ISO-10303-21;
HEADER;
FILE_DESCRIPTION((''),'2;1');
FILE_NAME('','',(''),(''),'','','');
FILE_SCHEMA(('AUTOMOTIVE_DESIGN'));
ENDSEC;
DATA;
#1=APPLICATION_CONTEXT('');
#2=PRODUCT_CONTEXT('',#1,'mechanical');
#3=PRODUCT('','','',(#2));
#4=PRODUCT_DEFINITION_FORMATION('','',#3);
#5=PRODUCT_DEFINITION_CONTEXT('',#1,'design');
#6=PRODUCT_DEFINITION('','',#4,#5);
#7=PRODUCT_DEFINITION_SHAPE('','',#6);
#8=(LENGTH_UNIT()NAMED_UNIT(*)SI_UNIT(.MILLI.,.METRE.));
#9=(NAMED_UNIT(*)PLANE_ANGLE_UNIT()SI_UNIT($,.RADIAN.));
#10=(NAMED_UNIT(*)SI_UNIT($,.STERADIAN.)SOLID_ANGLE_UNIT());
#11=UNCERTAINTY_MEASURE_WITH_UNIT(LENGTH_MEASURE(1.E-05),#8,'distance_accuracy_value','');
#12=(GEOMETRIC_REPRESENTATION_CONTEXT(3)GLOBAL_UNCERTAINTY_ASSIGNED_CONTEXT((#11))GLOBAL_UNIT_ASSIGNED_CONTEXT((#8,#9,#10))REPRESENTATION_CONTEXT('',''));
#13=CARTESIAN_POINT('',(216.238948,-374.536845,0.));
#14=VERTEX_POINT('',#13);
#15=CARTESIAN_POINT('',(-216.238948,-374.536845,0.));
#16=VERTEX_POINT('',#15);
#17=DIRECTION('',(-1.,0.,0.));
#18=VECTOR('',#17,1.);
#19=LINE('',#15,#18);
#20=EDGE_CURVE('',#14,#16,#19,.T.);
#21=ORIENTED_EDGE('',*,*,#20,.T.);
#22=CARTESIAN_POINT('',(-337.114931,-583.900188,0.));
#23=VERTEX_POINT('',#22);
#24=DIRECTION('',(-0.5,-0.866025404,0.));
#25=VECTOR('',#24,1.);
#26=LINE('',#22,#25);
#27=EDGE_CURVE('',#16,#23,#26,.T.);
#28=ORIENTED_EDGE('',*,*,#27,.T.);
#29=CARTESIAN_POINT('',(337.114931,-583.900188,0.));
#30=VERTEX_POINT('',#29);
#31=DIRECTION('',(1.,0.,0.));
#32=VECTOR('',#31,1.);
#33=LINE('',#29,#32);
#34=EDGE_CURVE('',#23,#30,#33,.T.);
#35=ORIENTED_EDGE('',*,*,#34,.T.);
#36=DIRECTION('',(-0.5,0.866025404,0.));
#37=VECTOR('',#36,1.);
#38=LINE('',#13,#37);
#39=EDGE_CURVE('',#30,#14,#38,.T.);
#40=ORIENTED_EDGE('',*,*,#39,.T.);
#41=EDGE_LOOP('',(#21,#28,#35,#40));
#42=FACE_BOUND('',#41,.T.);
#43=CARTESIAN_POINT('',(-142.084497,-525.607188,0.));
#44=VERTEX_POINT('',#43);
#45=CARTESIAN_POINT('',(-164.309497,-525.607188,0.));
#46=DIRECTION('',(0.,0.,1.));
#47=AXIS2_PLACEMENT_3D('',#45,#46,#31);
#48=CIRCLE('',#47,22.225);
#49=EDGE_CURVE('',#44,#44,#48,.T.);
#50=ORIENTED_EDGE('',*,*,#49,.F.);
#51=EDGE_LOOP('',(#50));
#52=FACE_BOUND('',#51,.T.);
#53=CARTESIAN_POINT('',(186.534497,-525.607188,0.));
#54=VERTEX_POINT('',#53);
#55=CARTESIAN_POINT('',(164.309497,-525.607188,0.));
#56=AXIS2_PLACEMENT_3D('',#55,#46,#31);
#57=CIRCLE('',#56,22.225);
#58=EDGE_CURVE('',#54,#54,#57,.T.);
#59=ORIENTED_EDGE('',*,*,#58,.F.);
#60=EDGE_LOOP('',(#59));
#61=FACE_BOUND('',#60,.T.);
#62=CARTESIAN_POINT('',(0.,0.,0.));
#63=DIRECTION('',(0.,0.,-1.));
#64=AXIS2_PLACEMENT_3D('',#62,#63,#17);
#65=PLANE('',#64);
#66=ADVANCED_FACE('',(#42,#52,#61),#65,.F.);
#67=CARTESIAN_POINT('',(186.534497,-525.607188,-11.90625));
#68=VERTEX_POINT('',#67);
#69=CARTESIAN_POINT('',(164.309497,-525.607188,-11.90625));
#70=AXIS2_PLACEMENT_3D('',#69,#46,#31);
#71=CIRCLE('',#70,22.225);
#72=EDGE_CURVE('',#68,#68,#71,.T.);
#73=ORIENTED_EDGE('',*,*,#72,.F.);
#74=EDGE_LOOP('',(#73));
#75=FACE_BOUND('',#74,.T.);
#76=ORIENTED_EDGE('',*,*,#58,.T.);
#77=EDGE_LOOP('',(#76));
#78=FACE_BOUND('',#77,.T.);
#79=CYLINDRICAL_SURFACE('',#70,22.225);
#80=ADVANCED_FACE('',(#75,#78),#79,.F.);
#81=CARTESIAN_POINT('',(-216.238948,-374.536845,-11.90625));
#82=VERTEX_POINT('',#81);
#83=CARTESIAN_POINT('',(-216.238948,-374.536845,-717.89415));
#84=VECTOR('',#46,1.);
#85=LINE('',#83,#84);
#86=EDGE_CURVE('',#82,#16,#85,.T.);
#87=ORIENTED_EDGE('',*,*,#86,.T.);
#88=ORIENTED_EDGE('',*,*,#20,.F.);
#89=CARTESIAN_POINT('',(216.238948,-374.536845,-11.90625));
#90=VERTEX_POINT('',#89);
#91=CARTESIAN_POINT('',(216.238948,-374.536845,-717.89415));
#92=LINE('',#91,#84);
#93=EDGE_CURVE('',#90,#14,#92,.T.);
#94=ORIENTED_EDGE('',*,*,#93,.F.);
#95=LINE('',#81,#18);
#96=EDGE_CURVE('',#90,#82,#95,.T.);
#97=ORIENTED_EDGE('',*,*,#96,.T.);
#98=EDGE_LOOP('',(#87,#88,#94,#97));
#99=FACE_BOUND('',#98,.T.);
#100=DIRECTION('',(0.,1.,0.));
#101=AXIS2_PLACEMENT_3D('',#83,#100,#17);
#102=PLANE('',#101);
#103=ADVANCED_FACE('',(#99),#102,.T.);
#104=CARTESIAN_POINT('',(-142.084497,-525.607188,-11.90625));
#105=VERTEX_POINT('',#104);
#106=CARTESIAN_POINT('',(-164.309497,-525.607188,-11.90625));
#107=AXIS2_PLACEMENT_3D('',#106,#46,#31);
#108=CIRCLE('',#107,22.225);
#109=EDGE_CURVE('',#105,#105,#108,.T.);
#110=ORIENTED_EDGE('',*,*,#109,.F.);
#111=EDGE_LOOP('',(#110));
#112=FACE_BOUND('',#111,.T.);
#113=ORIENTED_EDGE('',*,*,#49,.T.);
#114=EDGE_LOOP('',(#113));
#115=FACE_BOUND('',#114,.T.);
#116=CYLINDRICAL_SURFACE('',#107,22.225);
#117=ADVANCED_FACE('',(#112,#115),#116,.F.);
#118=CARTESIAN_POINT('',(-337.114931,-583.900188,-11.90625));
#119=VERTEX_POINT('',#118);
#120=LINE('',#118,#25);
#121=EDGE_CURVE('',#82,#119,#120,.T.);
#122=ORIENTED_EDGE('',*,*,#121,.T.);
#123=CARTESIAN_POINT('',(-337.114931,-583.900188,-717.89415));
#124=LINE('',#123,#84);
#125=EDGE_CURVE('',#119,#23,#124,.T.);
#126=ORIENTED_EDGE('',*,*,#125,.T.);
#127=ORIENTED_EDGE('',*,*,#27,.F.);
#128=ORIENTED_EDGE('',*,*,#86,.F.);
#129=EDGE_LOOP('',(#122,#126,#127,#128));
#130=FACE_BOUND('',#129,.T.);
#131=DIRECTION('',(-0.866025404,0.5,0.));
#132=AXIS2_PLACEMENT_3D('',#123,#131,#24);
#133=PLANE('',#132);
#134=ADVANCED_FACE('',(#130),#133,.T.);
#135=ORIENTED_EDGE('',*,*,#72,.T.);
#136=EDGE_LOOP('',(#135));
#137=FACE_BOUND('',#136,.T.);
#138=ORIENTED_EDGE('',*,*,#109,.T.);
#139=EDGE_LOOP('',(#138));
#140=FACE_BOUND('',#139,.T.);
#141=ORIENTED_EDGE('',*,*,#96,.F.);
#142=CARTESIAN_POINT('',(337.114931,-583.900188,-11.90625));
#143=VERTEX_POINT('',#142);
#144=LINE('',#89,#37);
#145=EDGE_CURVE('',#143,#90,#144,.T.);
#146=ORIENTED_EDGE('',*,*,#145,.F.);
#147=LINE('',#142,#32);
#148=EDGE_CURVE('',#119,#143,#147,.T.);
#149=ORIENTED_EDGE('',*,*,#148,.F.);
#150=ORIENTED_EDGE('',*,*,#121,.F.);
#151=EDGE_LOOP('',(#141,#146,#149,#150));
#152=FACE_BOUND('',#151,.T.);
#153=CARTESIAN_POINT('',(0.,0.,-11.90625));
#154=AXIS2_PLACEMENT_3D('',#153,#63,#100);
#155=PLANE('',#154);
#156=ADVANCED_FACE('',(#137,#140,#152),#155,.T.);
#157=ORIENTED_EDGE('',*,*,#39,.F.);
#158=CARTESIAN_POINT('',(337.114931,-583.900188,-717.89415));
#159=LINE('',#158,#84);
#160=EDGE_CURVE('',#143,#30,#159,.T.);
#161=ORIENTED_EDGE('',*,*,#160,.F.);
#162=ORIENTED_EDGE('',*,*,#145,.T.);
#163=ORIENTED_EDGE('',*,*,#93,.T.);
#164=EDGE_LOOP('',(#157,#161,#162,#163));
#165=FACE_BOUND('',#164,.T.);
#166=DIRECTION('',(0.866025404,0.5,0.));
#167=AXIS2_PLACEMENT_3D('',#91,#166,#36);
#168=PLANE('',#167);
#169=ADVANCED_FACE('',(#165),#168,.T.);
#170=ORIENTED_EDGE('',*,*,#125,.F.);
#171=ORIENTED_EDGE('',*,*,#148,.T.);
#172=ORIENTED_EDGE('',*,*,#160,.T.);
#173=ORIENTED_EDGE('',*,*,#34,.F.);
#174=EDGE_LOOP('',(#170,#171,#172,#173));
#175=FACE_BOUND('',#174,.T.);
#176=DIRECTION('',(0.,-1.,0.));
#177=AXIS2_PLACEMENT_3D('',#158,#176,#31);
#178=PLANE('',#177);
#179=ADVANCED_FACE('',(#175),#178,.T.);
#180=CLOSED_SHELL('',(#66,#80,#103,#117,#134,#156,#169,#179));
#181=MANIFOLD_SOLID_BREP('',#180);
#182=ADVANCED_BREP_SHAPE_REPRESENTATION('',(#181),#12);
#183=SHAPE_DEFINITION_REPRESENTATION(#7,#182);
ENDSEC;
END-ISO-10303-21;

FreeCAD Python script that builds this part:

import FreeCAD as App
import Part
import Sketcher
Q = App.Units.Quantity


def add_polygon(sketch, points):
    """Adds a closed chain of lines whose ends are joined by coincident constraints."""
    first, n = sketch.GeometryCount, len(points)
    for a, b in zip(points, points[1:] + points[:1]):
        sketch.addGeometry(Part.LineSegment(App.Vector(*a, 0), App.Vector(*b, 0)), False)
    for i in range(n):
        sketch.addConstraint(Sketcher.Constraint("Coincident", first + i, 2, first + (i + 1) % n, 1))

doc = App.newDocument("Part")
body = doc.addObject("PartDesign::Body", "Body")

sketch1 = body.newObject("Sketcher::SketchObject", "Sketch")
sketch1.AttachmentSupport = (doc.getObject("XY_Plane"), [""])
sketch1.MapMode = "FlatFace"
add_polygon(sketch1, [(-216, -375), (-337, -584), (337, -584), (216, -375)])
sketch1.addConstraint([
    Sketcher.Constraint("Horizontal", 1),
    Sketcher.Constraint("Horizontal", 3),
    Sketcher.Constraint("Equal", 0, 2),
    Sketcher.Constraint("Angle", 0, Q("-120 deg")),
    Sketcher.Constraint("DistanceX", 1, 1, 1, 2, 674.229861),
    Sketcher.Constraint("DistanceX", 3, 2, 3, 1, 432.477896),
    Sketcher.Constraint("DistanceX", 0, 2, -1, 1, 337.114931),
    Sketcher.Constraint("DistanceY", 0, 2, -1, 1, 583.900188),
])
pad1 = body.newObject("PartDesign::Pad", "Pad")
pad1.Profile = sketch1
pad1.Length = Q("0.46875 in")
pad1.Reversed = True

sketch2 = body.newObject("Sketcher::SketchObject", "Sketch001")
sketch2.AttachmentSupport = (doc.getObject("XY_Plane"), [""])
sketch2.MapMode = "FlatFace"
sketch2.addGeometry([
    Part.Circle(App.Vector(-164, -526, 0), App.Vector(0, 0, 1), 22),
    Part.Circle(App.Vector(164, -526, 0), App.Vector(0, 0, 1), 22),
], False)
sketch2.addConstraint([
    Sketcher.Constraint("Equal", 0, 1),
    Sketcher.Constraint("Symmetric", 0, 3, 1, 3, -2),
    Sketcher.Constraint("Diameter", 0, Q("1.75 in")),
    Sketcher.Constraint("DistanceX", 0, 3, -1, 1, 164.309497),
    Sketcher.Constraint("DistanceY", 0, 3, -1, 1, 525.607188),
])
pocket1 = body.newObject("PartDesign::Pocket", "Pocket")
pocket1.Profile = sketch2
pocket1.Type = "ThroughAll"

doc.recompute()
